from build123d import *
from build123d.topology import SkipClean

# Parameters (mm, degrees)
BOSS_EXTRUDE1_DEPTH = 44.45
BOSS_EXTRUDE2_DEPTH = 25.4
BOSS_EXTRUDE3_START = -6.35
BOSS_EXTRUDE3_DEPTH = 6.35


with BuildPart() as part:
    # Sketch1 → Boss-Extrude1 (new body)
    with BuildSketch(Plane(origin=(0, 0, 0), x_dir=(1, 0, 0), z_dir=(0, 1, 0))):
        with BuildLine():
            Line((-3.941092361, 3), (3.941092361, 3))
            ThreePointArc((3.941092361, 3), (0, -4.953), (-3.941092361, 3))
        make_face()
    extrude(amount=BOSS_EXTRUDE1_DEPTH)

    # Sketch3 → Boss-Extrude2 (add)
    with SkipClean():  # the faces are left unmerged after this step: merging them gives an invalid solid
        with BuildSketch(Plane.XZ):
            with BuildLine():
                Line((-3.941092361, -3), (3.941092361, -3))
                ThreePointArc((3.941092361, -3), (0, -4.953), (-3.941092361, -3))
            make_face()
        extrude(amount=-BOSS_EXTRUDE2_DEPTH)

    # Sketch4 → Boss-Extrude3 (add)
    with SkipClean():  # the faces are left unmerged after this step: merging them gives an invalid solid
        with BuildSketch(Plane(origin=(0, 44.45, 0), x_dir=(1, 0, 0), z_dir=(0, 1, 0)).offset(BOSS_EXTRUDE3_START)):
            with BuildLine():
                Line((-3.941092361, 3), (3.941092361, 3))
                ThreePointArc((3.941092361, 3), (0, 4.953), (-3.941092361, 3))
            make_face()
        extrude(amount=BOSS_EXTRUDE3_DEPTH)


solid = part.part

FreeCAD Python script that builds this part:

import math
import FreeCAD as App
import Part
import Sketcher

V = App.Vector
Q = App.Units.Quantity

doc = App.newDocument("Part")
params = doc.addObject("Spreadsheet::Sheet", "Params")
for row, (alias, value) in enumerate([
    ("sketch1_radius", "0.195 in"),
    ("pad1_length", "1.75 in"),
    ("sketch2_radius", "0.195 in"),
    ("pad2_length", "1 in"),
    ("sketch3_radius", "0.195 in"),
    ("pad3_length", "0.25 in"),
], start=1):
    params.set(f"A{row}", alias)
    params.set(f"B{row}", "=" + value)
    params.setAlias(f"B{row}", alias)

body = doc.addObject("PartDesign::Body", "Body")

# Sketch on XZ plane
sketch1 = body.newObject("Sketcher::SketchObject", "Sketch")
sketch1.AttachmentSupport = (doc.getObject("XZ_Plane"), [""])
sketch1.MapMode = "FlatFace"
sketch1.addGeometry([
    Part.LineSegment(V(3.9, -3, 0), V(-3.9, -3, 0)),
    Part.ArcOfCircle(Part.Circle(V(0, 0, 0), V(0, 0, 1), 5), math.radians(-37), math.radians(217)),
], False)
sketch1.addConstraint([
    Sketcher.Constraint("Coincident", 0, 1, 1, 1),
    Sketcher.Constraint("Coincident", 1, 2, 0, 2),
    Sketcher.Constraint("Horizontal", 0),
    Sketcher.Constraint("Coincident", 1, 3, -1, 1),
    Sketcher.Constraint("Radius", 1, Q("0.195 in")),
    Sketcher.Constraint("DistanceY", 0, 1, -1, 1, Q("3 mm")),
])
sketch1.setExpression("Constraints[4]", "Params.sketch1_radius")
pad1 = body.newObject("PartDesign::Pad", "Pad")
pad1.Profile = sketch1
pad1.setExpression("Length", "Params.pad1_length")
pad1.Reversed = True

# Sketch on XZ plane
sketch2 = body.newObject("Sketcher::SketchObject", "Sketch001")
sketch2.AttachmentSupport = (doc.getObject("XZ_Plane"), [""])
sketch2.MapMode = "FlatFace"
sketch2.addGeometry([
    Part.LineSegment(V(3.9, -3, 0), V(-3.9, -3, 0)),
    Part.ArcOfCircle(Part.Circle(V(0, 0, 0), V(0, 0, 1), 5), math.radians(-143), math.radians(-37)),
], False)
sketch2.addConstraint([
    Sketcher.Constraint("Coincident", 0, 1, 1, 2),
    Sketcher.Constraint("Coincident", 1, 1, 0, 2),
    Sketcher.Constraint("Horizontal", 0),
    Sketcher.Constraint("Coincident", 1, 3, -1, 1),
    Sketcher.Constraint("Radius", 1, Q("0.195 in")),
    Sketcher.Constraint("DistanceY", 0, 1, -1, 1, Q("3 mm")),
])
sketch2.setExpression("Constraints[4]", "Params.sketch2_radius")
pad2 = body.newObject("PartDesign::Pad", "Pad001")
pad2.Profile = sketch2
pad2.setExpression("Length", "Params.pad2_length")
pad2.Reversed = True

# Sketch on XZ plane
sketch3 = body.newObject("Sketcher::SketchObject", "Sketch002")
sketch3.AttachmentSupport = (doc.getObject("XZ_Plane"), [""])
sketch3.MapMode = "FlatFace"
sketch3.AttachmentOffset = App.Placement(V(0, 0, -1.5 * 25.4), App.Rotation())
sketch3.addGeometry([
    Part.LineSegment(V(-3.9, -3, 0), V(3.9, -3, 0)),
    Part.ArcOfCircle(Part.Circle(V(0, 0, 0), V(0, 0, 1), 5), math.radians(-143), math.radians(-37)),
], False)
sketch3.addConstraint([
    Sketcher.Constraint("Coincident", 0, 1, 1, 1),
    Sketcher.Constraint("Coincident", 1, 2, 0, 2),
    Sketcher.Constraint("Horizontal", 0),
    Sketcher.Constraint("Coincident", 1, 3, -1, 1),
    Sketcher.Constraint("Radius", 1, Q("0.195 in")),
    Sketcher.Constraint("DistanceY", 0, 1, -1, 1, Q("3 mm")),
])
sketch3.setExpression("Constraints[4]", "Params.sketch3_radius")
pad3 = body.newObject("PartDesign::Pad", "Pad002")
pad3.Profile = sketch3
pad3.setExpression("Length", "Params.pad3_length")
pad3.Reversed = True

doc.recompute()
